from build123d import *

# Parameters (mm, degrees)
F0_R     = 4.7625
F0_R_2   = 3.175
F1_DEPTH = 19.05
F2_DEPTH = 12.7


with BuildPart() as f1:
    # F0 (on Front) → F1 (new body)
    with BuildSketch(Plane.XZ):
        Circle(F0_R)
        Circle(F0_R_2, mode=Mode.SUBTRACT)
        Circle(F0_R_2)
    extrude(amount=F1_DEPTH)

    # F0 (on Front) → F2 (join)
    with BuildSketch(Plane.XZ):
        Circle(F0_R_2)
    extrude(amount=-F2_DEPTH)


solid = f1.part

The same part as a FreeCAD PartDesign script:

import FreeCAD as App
import Part
import Sketcher
Q = App.Units.Quantity

doc = App.newDocument("Part")
body = doc.addObject("PartDesign::Body", "Body")

# Sketch on XZ plane
sketch1 = body.newObject("Sketcher::SketchObject", "Sketch")
sketch1.AttachmentSupport = (doc.getObject("XZ_Plane"), [""])
sketch1.MapMode = "FlatFace"
sketch1.addGeometry(Part.Circle(App.Vector(0, 0, 0), App.Vector(0, 0, 1), 4.7625), False)
sketch1.addConstraint([
    Sketcher.Constraint("Coincident", 0, 3, -1, 1),
    Sketcher.Constraint("Diameter", 0, Q("0.375 in")),
])
pad1 = body.newObject("PartDesign::Pad", "Pad")
pad1.Profile = sketch1
pad1.Length = Q("0.75 in")

# Sketch on XZ plane
sketch2 = body.newObject("Sketcher::SketchObject", "Sketch001")
sketch2.AttachmentSupport = (doc.getObject("XZ_Plane"), [""])
sketch2.MapMode = "FlatFace"
sketch2.addGeometry(Part.Circle(App.Vector(0, 0, 0), App.Vector(0, 0, 1), 3.175), False)
sketch2.addConstraint([
    Sketcher.Constraint("Coincident", 0, 3, -1, 1),
    Sketcher.Constraint("Diameter", 0, Q("0.25 in")),
])
pad2 = body.newObject("PartDesign::Pad", "Pad001")
pad2.Profile = sketch2
pad2.Length = Q("0.5 in")
pad2.Reversed = True

doc.recompute()
